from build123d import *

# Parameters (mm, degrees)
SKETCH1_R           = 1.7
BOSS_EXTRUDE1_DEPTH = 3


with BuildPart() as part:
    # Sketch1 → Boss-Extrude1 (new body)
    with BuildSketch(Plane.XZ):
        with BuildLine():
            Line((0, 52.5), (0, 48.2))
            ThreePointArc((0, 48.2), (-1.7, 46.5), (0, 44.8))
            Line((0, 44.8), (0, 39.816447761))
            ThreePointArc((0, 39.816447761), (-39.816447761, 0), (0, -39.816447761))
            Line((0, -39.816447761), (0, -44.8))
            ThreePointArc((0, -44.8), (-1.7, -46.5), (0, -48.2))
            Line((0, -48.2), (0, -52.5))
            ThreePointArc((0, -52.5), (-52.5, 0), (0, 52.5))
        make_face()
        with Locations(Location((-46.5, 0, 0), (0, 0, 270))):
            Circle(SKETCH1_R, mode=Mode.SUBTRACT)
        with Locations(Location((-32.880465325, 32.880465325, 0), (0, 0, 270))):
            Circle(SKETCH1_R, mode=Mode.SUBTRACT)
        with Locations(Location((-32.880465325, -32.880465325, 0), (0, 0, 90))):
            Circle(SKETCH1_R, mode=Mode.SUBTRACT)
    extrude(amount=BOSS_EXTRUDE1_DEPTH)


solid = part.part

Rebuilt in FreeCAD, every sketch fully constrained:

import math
import FreeCAD as App
import Part
import Sketcher
Q = App.Units.Quantity

doc = App.newDocument("Part")
params = doc.addObject("Spreadsheet::Sheet", "Params")
for row, (alias, value) in enumerate([
    ("sketch1_diameter", "3.4 mm"),
    ("sketch1_radius", "52.5 mm"),
    ("sketch1_height", "4.3 mm"),
    ("pad1_length", "3 mm"),
], start=1):
    params.set(f"A{row}", alias)
    params.set(f"B{row}", "=" + value)
    params.setAlias(f"B{row}", alias)

body = doc.addObject("PartDesign::Body", "Body")

sketch1 = body.newObject("Sketcher::SketchObject", "Sketch")
sketch1.AttachmentSupport = (doc.getObject("XZ_Plane"), [""])
sketch1.MapMode = "FlatFace"
sketch1.addGeometry([
    Part.LineSegment(App.Vector(0, 48.2, 0), App.Vector(0, 52.5, 0)),
    Part.ArcOfCircle(Part.Circle(App.Vector(0, 0, 0), App.Vector(0, 0, 1), 52.5), math.radians(90), math.radians(270)),
    Part.LineSegment(App.Vector(0, -52.5, 0), App.Vector(0, -48.2, 0)),
    Part.ArcOfCircle(Part.Circle(App.Vector(0, -46.5, 0), App.Vector(0, 0, 1), 1.7), math.radians(90), math.radians(270)),
    Part.LineSegment(App.Vector(0, -44.8, 0), App.Vector(0, -39.8, 0)),
    Part.ArcOfCircle(Part.Circle(App.Vector(0, 0, 0), App.Vector(0, 0, 1), 39.8), math.radians(90), math.radians(270)),
    Part.LineSegment(App.Vector(0, 39.8, 0), App.Vector(0, 44.8, 0)),
    Part.ArcOfCircle(Part.Circle(App.Vector(0, 46.5, 0), App.Vector(0, 0, 1), 1.7), math.radians(90), math.radians(270)),
    Part.Circle(App.Vector(-32.9, -32.9, 0), App.Vector(0, 0, 1), 1.7),
    Part.Circle(App.Vector(-32.9, 32.9, 0), App.Vector(0, 0, 1), 1.7),
    Part.Circle(App.Vector(-46.5, 0, 0), App.Vector(0, 0, 1), 1.7),
], False)
sketch1.addConstraint([
    Sketcher.Constraint("Coincident", 0, 2, 1, 1),
    Sketcher.Constraint("Coincident", 1, 2, 2, 1),
    Sketcher.Constraint("Coincident", 2, 2, 3, 2),
    Sketcher.Constraint("Coincident", 3, 1, 4, 1),
    Sketcher.Constraint("Coincident", 4, 2, 5, 2),
    Sketcher.Constraint("Coincident", 5, 1, 6, 1),
    Sketcher.Constraint("Coincident", 6, 2, 7, 2),
    Sketcher.Constraint("Coincident", 7, 1, 0, 1),
    Sketcher.Constraint("Vertical", 0),
    Sketcher.Constraint("Vertical", 2),
    Sketcher.Constraint("Vertical", 4),
    Sketcher.Constraint("Vertical", 6),
    Sketcher.Constraint("Coincident", 1, 3, -1, 1),
    Sketcher.Constraint("Coincident", 5, 3, -1, 1),
    Sketcher.Constraint("Equal", 3, 7),
    Sketcher.Constraint("Equal", 7, 8),
    Sketcher.Constraint("Equal", 8, 9),
    Sketcher.Constraint("Equal", 9, 10),
    Sketcher.Constraint("Symmetric", 3, 3, 7, 3, -1, 1),
    Sketcher.Constraint("Symmetric", 8, 3, 9, 3, -1),
    Sketcher.Constraint("PointOnObject", 3, 3, -2),
    Sketcher.Constraint("PointOnObject", 10, 3, -1),
    Sketcher.Constraint("PointOnObject", 0, 2, -2),
    Sketcher.Constraint("PointOnObject", 1, 2, -2),
    Sketcher.Constraint("PointOnObject", 3, 1, -2),
    Sketcher.Constraint("PointOnObject", 5, 1, -2),
    Sketcher.Constraint("Diameter", 8, Q("3.4 mm")),
    Sketcher.Constraint("Radius", 1, Q("52.5 mm")),
    Sketcher.Constraint("DistanceY", 0, 1, 0, 2, Q("4.3 mm")),
    Sketcher.Constraint("DistanceX", 10, 3, -1, 1, Q("46.5 mm")),
    Sketcher.Constraint("Radius", 5, Q("39.816448 mm")),
    Sketcher.Constraint("DistanceY", 8, 3, 9, 3, Q("65.760931 mm")),
    Sketcher.Constraint("DistanceX", 8, 3, -1, 1, Q("32.880465 mm")),
])
sketch1.setExpression("Constraints[26]", "Params.sketch1_diameter")
sketch1.setExpression("Constraints[27]", "Params.sketch1_radius")
sketch1.setExpression("Constraints[28]", "Params.sketch1_height")
pad1 = body.newObject("PartDesign::Pad", "Pad")
pad1.Profile = sketch1
pad1.setExpression("Length", "Params.pad1_length")

doc.recompute()
